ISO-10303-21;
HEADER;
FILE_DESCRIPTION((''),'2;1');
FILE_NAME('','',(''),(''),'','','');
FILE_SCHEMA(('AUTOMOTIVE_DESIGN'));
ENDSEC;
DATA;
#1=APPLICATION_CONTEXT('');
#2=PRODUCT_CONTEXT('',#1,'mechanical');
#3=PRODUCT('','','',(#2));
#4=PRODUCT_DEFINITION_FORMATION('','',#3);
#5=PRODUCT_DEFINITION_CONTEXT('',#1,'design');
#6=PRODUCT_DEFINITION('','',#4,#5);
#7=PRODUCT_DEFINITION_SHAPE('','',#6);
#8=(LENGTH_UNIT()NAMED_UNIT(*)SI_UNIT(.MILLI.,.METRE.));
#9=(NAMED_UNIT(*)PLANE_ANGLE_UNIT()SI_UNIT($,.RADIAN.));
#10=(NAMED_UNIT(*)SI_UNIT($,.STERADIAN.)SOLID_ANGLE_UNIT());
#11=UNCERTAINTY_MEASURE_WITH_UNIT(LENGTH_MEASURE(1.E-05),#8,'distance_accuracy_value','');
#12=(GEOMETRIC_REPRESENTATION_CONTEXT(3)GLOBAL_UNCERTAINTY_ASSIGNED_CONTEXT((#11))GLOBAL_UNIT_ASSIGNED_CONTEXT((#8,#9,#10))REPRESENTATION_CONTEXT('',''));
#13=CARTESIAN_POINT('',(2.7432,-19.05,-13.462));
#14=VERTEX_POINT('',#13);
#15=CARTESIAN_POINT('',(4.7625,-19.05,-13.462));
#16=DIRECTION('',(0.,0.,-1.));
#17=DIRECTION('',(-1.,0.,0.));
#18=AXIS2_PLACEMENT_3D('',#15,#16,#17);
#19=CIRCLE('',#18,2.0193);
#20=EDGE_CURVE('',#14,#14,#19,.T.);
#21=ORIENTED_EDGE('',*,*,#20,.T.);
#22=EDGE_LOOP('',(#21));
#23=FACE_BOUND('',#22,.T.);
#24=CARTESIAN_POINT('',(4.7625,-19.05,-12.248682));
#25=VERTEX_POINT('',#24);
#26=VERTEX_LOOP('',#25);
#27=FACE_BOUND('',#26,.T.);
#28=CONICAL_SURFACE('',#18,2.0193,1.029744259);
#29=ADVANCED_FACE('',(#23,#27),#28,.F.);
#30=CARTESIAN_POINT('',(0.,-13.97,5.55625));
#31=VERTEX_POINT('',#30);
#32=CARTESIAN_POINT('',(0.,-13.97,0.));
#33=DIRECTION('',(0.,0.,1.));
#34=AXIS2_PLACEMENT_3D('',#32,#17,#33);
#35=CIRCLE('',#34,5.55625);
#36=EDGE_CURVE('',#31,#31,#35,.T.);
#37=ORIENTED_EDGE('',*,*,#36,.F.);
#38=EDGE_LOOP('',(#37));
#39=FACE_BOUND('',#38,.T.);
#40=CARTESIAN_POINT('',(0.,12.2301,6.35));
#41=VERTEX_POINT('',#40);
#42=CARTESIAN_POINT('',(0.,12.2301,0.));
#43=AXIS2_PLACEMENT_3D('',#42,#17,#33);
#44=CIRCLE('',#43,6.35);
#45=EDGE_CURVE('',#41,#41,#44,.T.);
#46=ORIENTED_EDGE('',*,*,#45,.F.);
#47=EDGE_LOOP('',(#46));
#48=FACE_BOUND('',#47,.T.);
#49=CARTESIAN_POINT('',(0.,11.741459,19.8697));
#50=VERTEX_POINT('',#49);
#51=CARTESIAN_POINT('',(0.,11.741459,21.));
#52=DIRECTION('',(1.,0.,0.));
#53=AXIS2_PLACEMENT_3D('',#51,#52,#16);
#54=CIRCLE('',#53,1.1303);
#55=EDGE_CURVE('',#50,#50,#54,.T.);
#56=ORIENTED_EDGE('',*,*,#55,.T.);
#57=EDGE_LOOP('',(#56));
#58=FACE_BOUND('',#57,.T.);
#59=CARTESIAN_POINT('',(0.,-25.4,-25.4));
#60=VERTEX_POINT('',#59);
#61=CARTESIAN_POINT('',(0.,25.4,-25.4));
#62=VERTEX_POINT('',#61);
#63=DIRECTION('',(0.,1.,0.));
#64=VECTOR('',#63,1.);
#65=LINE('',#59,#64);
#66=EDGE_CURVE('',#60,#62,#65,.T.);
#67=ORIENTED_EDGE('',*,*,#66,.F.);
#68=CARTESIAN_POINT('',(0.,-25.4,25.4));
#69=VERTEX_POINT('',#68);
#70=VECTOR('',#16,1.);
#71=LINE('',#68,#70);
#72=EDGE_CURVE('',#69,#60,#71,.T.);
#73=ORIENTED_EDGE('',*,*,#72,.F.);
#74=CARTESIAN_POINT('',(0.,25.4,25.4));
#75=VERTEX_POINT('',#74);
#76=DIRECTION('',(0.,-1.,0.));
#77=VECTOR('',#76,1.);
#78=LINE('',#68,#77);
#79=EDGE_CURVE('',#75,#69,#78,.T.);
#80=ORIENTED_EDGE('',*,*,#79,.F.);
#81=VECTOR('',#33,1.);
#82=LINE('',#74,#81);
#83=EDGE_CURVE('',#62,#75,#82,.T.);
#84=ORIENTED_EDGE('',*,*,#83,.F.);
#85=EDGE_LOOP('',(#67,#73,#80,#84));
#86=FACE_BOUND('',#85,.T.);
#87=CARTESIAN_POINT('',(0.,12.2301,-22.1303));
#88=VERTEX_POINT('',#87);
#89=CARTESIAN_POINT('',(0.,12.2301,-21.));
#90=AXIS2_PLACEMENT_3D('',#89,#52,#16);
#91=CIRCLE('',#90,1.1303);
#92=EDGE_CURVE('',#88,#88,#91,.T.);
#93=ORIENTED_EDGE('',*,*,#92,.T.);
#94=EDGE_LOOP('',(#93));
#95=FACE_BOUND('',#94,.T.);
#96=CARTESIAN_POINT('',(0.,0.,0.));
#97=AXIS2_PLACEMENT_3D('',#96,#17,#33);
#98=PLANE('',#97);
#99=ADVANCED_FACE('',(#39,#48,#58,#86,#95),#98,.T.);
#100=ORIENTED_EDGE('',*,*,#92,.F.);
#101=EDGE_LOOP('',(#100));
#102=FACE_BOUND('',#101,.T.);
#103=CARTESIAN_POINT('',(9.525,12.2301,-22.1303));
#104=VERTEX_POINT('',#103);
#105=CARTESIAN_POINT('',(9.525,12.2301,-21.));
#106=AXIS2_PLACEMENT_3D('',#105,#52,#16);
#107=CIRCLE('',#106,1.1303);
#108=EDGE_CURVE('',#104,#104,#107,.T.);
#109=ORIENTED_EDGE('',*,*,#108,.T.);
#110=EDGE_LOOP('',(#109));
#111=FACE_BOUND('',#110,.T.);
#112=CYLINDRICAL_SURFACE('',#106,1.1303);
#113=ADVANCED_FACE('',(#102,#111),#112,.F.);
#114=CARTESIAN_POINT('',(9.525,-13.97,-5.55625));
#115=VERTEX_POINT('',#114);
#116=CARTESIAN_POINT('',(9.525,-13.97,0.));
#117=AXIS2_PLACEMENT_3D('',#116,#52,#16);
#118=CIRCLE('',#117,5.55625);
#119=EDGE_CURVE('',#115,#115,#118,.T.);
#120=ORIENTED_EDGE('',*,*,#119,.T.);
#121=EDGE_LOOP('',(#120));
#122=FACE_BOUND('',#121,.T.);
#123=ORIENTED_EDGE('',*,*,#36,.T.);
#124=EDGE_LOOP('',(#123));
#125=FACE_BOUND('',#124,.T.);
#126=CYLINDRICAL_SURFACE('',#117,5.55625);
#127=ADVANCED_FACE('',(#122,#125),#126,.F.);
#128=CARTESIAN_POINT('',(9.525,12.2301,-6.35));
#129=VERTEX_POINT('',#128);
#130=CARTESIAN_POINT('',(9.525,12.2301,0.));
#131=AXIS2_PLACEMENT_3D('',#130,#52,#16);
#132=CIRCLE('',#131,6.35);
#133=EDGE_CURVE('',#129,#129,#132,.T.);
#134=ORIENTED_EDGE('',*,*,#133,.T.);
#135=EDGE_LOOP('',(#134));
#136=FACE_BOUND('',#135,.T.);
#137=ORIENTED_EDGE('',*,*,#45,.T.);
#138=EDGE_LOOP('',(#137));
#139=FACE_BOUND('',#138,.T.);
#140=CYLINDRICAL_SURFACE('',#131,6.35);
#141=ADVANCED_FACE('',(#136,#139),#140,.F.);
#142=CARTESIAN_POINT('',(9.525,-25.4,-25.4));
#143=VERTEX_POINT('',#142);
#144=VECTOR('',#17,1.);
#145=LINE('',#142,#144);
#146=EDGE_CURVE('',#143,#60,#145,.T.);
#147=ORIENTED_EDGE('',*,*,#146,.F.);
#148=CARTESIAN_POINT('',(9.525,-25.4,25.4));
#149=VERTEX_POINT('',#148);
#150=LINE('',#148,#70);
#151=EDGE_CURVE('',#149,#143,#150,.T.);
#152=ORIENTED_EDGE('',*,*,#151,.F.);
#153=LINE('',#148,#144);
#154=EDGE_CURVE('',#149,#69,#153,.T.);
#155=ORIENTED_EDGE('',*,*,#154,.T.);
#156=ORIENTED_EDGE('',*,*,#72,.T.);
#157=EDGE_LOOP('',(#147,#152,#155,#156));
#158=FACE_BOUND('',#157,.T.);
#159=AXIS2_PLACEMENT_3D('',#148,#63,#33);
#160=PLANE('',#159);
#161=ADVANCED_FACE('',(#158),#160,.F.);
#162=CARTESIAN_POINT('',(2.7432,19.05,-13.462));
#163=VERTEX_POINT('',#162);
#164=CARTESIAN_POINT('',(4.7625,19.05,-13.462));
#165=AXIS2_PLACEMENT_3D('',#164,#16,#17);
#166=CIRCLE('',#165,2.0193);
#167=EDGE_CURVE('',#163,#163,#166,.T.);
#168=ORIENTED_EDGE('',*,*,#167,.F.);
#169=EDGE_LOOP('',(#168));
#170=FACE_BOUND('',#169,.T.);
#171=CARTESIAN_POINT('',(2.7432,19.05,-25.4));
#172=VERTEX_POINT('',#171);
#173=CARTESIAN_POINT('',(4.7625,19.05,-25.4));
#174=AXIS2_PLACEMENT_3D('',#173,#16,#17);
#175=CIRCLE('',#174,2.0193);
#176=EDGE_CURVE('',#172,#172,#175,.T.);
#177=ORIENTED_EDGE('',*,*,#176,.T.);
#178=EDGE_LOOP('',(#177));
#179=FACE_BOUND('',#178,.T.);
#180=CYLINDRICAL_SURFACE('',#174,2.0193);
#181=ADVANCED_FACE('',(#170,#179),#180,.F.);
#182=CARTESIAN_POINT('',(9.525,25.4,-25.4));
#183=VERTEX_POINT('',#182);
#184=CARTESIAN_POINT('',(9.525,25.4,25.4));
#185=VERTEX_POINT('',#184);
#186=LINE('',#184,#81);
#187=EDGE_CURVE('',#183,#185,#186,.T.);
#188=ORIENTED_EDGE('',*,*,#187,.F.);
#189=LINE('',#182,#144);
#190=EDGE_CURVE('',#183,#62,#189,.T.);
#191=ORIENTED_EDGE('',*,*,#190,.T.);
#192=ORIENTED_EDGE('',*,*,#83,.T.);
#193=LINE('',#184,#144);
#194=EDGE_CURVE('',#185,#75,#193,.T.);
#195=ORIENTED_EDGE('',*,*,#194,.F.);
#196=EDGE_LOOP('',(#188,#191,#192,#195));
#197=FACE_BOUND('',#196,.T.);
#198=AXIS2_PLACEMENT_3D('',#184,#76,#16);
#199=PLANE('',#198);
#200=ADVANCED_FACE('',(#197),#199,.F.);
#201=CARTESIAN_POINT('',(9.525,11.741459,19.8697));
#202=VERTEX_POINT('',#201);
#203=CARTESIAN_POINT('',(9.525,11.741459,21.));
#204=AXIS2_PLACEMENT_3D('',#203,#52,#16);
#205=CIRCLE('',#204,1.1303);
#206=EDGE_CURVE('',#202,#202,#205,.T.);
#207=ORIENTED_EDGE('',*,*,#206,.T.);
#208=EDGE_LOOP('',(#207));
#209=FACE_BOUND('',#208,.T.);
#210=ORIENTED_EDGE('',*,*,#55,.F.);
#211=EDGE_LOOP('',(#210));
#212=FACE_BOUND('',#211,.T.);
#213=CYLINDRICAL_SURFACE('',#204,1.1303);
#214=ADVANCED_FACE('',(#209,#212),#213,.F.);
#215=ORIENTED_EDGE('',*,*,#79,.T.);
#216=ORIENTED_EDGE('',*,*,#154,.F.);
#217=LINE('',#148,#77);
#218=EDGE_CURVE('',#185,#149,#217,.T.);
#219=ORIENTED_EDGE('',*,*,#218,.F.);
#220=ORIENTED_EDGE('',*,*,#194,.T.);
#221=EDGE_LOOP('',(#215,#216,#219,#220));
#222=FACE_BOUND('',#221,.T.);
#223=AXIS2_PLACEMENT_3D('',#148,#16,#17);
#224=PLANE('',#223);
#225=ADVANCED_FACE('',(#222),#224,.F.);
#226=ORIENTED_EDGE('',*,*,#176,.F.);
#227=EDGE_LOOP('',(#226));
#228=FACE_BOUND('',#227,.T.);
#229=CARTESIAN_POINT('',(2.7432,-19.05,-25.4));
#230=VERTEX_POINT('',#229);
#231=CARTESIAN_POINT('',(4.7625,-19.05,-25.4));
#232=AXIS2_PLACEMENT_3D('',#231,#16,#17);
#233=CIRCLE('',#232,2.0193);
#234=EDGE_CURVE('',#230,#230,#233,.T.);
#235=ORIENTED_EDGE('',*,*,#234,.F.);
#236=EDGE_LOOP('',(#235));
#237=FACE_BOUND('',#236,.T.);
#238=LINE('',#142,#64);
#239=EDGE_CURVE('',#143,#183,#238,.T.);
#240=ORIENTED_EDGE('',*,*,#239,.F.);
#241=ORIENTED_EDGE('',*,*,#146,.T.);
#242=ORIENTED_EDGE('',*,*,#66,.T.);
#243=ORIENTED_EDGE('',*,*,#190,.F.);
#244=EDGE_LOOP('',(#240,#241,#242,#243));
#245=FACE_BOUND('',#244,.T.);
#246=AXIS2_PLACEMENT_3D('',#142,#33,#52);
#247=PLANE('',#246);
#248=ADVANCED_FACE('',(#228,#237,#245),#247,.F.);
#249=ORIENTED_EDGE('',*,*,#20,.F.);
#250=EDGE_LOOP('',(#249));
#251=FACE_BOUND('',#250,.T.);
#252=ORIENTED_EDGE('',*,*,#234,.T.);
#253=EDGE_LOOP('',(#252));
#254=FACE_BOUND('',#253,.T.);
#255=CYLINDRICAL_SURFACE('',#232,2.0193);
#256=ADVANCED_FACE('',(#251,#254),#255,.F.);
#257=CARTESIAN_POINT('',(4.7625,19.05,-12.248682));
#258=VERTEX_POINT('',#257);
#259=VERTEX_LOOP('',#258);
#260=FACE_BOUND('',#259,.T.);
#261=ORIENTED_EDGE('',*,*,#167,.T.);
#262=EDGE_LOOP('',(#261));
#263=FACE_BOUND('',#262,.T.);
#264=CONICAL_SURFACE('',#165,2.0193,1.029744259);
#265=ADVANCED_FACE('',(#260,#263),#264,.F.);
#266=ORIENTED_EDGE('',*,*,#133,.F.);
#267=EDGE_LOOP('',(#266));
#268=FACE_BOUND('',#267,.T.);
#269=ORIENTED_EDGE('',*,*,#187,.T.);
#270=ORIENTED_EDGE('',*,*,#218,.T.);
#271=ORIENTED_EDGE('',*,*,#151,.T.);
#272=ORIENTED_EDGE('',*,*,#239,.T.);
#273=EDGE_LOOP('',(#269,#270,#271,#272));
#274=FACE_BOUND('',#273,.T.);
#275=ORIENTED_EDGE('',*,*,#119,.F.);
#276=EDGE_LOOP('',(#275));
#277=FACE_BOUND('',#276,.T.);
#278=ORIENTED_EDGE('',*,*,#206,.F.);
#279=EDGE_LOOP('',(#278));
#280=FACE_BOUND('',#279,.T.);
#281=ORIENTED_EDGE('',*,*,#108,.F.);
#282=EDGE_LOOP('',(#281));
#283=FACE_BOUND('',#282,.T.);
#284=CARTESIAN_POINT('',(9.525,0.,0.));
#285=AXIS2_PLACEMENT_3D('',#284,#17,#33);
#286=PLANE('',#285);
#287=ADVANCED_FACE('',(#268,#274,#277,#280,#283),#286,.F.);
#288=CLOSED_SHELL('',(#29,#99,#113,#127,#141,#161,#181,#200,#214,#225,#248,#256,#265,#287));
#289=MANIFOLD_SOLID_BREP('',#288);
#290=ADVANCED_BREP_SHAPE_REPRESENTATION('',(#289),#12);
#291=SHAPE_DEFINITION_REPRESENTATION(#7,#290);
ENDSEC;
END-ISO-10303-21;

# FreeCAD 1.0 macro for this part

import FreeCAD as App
import Part
import Sketcher
from FreeCAD import Vector
Q = App.Units.Quantity


def add_polygon(sketch, points):
    """Adds a closed chain of lines whose ends are joined by coincident constraints."""
    first, n = sketch.GeometryCount, len(points)
    for a, b in zip(points, points[1:] + points[:1]):
        sketch.addGeometry(Part.LineSegment(App.Vector(*a, 0), App.Vector(*b, 0)), False)
    for i in range(n):
        sketch.addConstraint(Sketcher.Constraint("Coincident", first + i, 2, first + (i + 1) % n, 1))

doc = App.newDocument("Part")
body = doc.addObject("PartDesign::Body", "Body")

# Sketch on YZ plane
sketch1 = body.newObject("Sketcher::SketchObject", "Sketch")
sketch1.AttachmentSupport = (doc.getObject("YZ_Plane"), [""])
sketch1.MapMode = "FlatFace"
add_polygon(sketch1, [(25, 25), (-25, 25), (-25, -25), (25, -25)])  # lines 0-3
sketch1.addConstraint([
    Sketcher.Constraint("Horizontal", 0),
    Sketcher.Constraint("Vertical", 1),
    Sketcher.Constraint("Horizontal", 2),
    Sketcher.Constraint("Vertical", 3),
    Sketcher.Constraint("Symmetric", 0, 2, 2, 2, -1, 1),
    Sketcher.Constraint("Equal", 2, 1),
    Sketcher.Constraint("DistanceX", 0, 2, 0, 1, Q("2 in")),
])
pad1 = body.newObject("PartDesign::Pad", "Pad")
pad1.Profile = sketch1
pad1.Length = Q("0.375 in")

# Sketch on YZ plane
sketch2 = body.newObject("Sketcher::SketchObject", "Sketch001")
sketch2.AttachmentSupport = (doc.getObject("YZ_Plane"), [""])
sketch2.MapMode = "FlatFace"
sketch2.AttachmentOffset = App.Placement(Vector(0, 0, 0.375 * 25.4), App.Rotation())
sketch2.addGeometry(Part.Circle(Vector(-14, 0, 0), Vector(0, 0, 1), 6), False)
sketch2.addConstraint([
    Sketcher.Constraint("PointOnObject", 0, 3, -1),
    Sketcher.Constraint("Diameter", 0, Q("0.4375 in")),
    Sketcher.Constraint("DistanceX", 0, 3, -1, 1, Q("0.55 in")),
])
doc.recompute()
hole = body.newObject("PartDesign::Hole", "Hole")
hole.Profile = sketch2
hole.ThreadType = "None"
hole.Diameter = Q("0.4375 in")
hole.DepthType = "Dimension"
hole.Depth = Q("2.76 in")
hole.DrillPoint = "Angled"
hole.DrillPointAngle = 118

# Sketch on YZ plane
sketch3 = body.newObject("Sketcher::SketchObject", "Sketch002")
sketch3.AttachmentSupport = (doc.getObject("YZ_Plane"), [""])
sketch3.MapMode = "FlatFace"
sketch3.AttachmentOffset = App.Placement(Vector(0, 0, 0.375 * 25.4), App.Rotation())
sketch3.addGeometry(Part.Circle(Vector(12, 0, 0), Vector(0, 0, 1), 6), False)
sketch3.addConstraint([
    Sketcher.Constraint("PointOnObject", 0, 3, -1),
    Sketcher.Constraint("Diameter", 0, Q("0.5 in")),
    Sketcher.Constraint("DistanceX", -1, 1, 0, 3, Q("0.4815 in")),
])
doc.recompute()
hole2 = body.newObject("PartDesign::Hole", "Hole001")
hole2.Profile = sketch3
hole2.ThreadType = "None"
hole2.Diameter = Q("0.5 in")
hole2.DepthType = "Dimension"
hole2.Depth = Q("2.76 in")
hole2.DrillPoint = "Angled"
hole2.DrillPointAngle = 118

# Sketch on YZ plane
sketch4 = body.newObject("Sketcher::SketchObject", "Sketch003")
sketch4.AttachmentSupport = (doc.getObject("YZ_Plane"), [""])
sketch4.MapMode = "FlatFace"
sketch4.AttachmentOffset = App.Placement(Vector(0, 0, 0.375 * 25.4), App.Rotation())
sketch4.addGeometry([
    Part.Circle(Vector(12.2, -21, 0), Vector(0, 0, 1), 1.1),
    Part.Circle(Vector(11.7, 21, 0), Vector(0, 0, 1), 1.1),
], False)
sketch4.addConstraint([
    Sketcher.Constraint("Equal", 0, 1),
    Sketcher.Constraint("Diameter", 0, Q("0.089 in")),
    Sketcher.Constraint("DistanceX", -1, 1, 0, 3, Q("0.4815 in")),
    Sketcher.Constraint("DistanceY", 0, 3, -1, 1, 21.0),
    Sketcher.Constraint("DistanceY", -1, 1, 1, 3, 21.0),
    Sketcher.Constraint("DistanceX", -1, 1, 1, 3, 11.741459),
])
doc.recompute()
hole3 = body.newObject("PartDesign::Hole", "Hole002")
hole3.Profile = sketch4
hole3.ThreadType = "None"
hole3.Diameter = Q("0.089 in")
hole3.DepthType = "ThroughAll"

# Sketch on XY plane
sketch5 = body.newObject("Sketcher::SketchObject", "Sketch004")
sketch5.AttachmentSupport = (doc.getObject("XY_Plane"), [""])
sketch5.MapMode = "FlatFace"
sketch5.AttachmentOffset = App.Placement(Vector(0, 0, -1 * 25.4), App.Rotation())
sketch5.addGeometry([
    Part.Circle(Vector(4.8, -19.1, 0), Vector(0, 0, 1), 2),
    Part.Circle(Vector(4.8, 19.1, 0), Vector(0, 0, 1), 2),
], False)
sketch5.addConstraint([
    Sketcher.Constraint("Equal", 0, 1),
    Sketcher.Constraint("Symmetric", 0, 3, 1, 3, -1),
    Sketcher.Constraint("Diameter", 0, Q("0.159 in")),
    Sketcher.Constraint("DistanceY", 0, 3, 1, 3, Q("1.5 in")),
    Sketcher.Constraint("DistanceX", -1, 1, 0, 3, Q("0.1875 in")),
])
doc.recompute()
hole4 = body.newObject("PartDesign::Hole", "Hole003")
hole4.Profile = sketch5
hole4.ThreadType = "None"
hole4.Diameter = Q("0.159 in")
hole4.DepthType = "Dimension"
hole4.Depth = Q("0.47 in")
hole4.DrillPoint = "Angled"
hole4.DrillPointAngle = 118
hole4.Reversed = True

doc.recompute()
